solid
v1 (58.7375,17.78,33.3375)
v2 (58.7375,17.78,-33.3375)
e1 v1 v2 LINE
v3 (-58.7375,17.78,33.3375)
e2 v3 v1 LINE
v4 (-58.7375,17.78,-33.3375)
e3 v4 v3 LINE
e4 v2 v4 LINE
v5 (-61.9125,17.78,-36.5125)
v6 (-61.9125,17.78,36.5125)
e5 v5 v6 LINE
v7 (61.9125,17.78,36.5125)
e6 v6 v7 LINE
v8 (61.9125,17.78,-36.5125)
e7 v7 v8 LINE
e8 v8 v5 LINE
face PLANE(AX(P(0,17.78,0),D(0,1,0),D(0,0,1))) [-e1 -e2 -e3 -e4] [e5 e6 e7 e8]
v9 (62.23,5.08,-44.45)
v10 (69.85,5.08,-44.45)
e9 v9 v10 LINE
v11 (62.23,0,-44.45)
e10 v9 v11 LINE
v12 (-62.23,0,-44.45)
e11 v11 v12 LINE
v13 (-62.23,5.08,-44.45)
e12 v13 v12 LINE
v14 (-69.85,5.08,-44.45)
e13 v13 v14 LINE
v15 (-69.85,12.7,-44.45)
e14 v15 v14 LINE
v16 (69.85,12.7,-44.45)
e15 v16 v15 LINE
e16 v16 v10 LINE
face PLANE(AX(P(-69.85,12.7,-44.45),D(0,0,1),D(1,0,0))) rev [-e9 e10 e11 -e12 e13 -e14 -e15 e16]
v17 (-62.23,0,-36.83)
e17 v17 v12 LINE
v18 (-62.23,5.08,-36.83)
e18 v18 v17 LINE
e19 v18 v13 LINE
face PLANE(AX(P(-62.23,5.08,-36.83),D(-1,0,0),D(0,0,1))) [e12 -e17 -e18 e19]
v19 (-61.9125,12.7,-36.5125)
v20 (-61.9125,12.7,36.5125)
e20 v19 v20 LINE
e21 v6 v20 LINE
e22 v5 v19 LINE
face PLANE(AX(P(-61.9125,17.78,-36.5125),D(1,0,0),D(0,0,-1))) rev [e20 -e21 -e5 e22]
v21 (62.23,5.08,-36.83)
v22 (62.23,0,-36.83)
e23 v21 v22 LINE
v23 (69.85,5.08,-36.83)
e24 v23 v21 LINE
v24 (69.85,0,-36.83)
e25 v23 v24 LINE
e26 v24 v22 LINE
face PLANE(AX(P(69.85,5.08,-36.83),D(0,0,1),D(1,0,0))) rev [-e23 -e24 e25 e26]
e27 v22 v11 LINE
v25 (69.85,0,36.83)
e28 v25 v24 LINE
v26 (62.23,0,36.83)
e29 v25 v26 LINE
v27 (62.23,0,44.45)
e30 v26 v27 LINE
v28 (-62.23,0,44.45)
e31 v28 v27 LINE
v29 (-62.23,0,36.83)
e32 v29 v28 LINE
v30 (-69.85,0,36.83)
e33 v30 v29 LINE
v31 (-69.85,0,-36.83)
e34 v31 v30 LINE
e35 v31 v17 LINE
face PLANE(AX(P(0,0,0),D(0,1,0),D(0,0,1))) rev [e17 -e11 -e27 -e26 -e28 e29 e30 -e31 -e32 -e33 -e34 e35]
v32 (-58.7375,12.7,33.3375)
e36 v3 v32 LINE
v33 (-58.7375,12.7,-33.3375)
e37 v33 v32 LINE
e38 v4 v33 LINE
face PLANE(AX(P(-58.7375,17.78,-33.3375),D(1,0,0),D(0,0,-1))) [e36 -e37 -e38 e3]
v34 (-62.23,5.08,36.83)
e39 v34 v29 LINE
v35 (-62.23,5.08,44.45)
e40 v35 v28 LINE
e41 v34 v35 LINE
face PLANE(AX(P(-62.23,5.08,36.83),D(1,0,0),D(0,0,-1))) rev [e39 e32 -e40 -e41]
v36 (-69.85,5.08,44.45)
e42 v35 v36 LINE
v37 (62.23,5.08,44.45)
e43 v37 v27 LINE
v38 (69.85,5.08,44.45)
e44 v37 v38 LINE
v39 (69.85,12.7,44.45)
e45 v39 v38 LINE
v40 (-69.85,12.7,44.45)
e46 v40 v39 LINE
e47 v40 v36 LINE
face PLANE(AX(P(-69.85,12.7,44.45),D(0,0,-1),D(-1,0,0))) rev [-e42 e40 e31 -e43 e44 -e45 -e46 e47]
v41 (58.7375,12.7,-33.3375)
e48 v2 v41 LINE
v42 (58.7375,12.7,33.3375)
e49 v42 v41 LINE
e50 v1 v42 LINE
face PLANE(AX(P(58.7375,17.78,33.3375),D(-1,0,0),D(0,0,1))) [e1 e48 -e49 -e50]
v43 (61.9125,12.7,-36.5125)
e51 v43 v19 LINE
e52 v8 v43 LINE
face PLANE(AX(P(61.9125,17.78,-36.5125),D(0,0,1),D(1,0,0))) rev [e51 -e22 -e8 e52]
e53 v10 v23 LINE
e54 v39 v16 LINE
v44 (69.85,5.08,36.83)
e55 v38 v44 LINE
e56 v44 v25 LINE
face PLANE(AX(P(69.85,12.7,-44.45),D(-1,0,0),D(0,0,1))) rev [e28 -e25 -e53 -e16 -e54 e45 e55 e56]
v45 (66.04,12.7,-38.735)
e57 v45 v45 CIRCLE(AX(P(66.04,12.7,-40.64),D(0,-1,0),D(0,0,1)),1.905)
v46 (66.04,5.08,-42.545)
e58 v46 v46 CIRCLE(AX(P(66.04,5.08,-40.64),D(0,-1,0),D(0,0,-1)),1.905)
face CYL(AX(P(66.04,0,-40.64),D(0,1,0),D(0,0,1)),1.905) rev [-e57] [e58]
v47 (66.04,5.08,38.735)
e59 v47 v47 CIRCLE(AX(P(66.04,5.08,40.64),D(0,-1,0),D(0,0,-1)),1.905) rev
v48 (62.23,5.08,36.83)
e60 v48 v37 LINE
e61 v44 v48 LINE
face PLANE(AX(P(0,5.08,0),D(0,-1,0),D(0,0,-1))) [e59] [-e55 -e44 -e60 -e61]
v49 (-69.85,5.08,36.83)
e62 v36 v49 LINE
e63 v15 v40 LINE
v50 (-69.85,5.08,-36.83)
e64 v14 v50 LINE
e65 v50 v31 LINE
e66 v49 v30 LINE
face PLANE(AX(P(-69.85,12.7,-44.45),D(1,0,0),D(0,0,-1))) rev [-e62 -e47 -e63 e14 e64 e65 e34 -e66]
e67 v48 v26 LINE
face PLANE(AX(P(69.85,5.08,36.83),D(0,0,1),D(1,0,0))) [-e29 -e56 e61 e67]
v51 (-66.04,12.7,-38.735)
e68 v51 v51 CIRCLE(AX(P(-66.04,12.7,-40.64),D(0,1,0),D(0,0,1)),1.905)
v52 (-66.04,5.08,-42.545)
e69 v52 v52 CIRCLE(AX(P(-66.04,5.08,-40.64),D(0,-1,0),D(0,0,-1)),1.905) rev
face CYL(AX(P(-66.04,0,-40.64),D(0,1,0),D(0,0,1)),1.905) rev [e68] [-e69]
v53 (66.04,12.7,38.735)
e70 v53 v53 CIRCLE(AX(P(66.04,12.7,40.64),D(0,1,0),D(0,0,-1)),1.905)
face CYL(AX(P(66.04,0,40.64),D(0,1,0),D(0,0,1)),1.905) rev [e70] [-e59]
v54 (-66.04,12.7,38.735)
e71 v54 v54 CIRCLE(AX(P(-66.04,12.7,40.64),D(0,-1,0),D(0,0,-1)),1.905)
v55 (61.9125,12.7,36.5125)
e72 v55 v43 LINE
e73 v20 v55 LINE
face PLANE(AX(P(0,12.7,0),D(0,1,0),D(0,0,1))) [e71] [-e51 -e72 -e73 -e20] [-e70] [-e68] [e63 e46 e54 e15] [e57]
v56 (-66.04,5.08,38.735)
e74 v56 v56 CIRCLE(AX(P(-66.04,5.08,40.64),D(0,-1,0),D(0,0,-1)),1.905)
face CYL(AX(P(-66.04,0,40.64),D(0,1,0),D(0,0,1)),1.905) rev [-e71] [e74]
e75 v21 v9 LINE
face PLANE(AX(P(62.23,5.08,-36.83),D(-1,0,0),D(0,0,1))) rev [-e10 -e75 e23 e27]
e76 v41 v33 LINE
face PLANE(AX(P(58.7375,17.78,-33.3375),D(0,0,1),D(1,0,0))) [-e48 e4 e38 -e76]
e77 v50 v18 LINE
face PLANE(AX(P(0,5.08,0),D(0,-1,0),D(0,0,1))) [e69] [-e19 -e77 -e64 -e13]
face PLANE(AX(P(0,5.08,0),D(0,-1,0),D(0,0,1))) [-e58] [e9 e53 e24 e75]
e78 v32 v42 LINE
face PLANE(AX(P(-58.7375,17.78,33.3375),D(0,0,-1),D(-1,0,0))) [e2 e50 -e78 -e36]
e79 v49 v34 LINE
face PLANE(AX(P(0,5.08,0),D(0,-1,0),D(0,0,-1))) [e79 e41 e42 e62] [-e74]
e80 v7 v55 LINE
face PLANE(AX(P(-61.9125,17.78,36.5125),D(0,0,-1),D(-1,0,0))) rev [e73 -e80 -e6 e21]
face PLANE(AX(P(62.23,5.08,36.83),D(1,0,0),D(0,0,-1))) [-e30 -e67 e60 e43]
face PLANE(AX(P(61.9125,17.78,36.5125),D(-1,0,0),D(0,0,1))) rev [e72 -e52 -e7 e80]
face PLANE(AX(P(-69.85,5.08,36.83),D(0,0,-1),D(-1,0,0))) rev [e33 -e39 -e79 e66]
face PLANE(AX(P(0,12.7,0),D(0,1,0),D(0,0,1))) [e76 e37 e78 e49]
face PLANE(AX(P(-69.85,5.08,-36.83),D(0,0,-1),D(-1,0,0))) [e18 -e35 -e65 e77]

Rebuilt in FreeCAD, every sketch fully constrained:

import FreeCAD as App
import Part
import Sketcher

V = App.Vector
Q = App.Units.Quantity

doc = App.newDocument("Part")
body = doc.addObject("PartDesign::Body", "Body")

sketch1 = doc.addObject("Sketcher::SketchObject", "Sketch")
body.addObject(sketch1)
sketch1.AttachmentSupport = (doc.XZ_Plane, [""])
sketch1.MapMode = "FlatFace"
sketch1.addGeometry([
    Part.LineSegment(V(-70, -44, 0), V(-70, 44, 0)),
    Part.LineSegment(V(-70, 44, 0), V(70, 44, 0)),
    Part.LineSegment(V(70, 44, 0), V(70, -44, 0)),
    Part.LineSegment(V(70, -44, 0), V(-70, -44, 0)),
], False)
sketch1.addConstraint([
    Sketcher.Constraint("Coincident", 0, 2, 1, 1),
    Sketcher.Constraint("Coincident", 1, 2, 2, 1),
    Sketcher.Constraint("Coincident", 2, 2, 3, 1),
    Sketcher.Constraint("Coincident", 3, 2, 0, 1),
    Sketcher.Constraint("Vertical", 0),
    Sketcher.Constraint("Horizontal", 1),
    Sketcher.Constraint("Vertical", 2),
    Sketcher.Constraint("Horizontal", 3),
    Sketcher.Constraint("Symmetric", 0, 2, 2, 2, -1, 1),
    Sketcher.Constraint("DistanceX", 1, 1, 1, 2, Q("5.5 in")),
    Sketcher.Constraint("DistanceY", 0, 1, 0, 2, Q("3.5 in")),
])
pad1 = doc.addObject("PartDesign::Pad", "Pad")
body.addObject(pad1)
pad1.Profile = sketch1
pad1.Length = Q("0.5 in")
pad1.Reversed = True

sketch2 = doc.addObject("Sketcher::SketchObject", "Sketch001")
body.addObject(sketch2)
sketch2.AttachmentSupport = (doc.XZ_Plane, [""])
sketch2.MapMode = "FlatFace"
sketch2.AttachmentOffset = App.Placement(V(0, 0, -0.5 * 25.4), App.Rotation())
sketch2.addGeometry(Part.Circle(V(-66, -40.6, 0), V(0, 0, 1), 1.9), False)
sketch2.addConstraint([
    Sketcher.Constraint("Diameter", 0, Q("0.15 in")),
    Sketcher.Constraint("DistanceX", 0, 3, -1, 1, Q("2.6 in")),
    Sketcher.Constraint("DistanceY", 0, 3, -1, 1, Q("1.6 in")),
])
pocket1 = doc.addObject("PartDesign::Pocket", "Pocket")
body.addObject(pocket1)
pocket1.Profile = sketch2
pocket1.Type = "ThroughAll"
pocket1.Reversed = True
doc.recompute()

mirrored = doc.addObject("PartDesign::Mirrored", "Mirrored")
body.addObject(mirrored)
mirrored.Originals = [pocket1]
mirrored.MirrorPlane = (doc.YZ_Plane, [""])
body.Tip = mirrored
doc.recompute()

mirrored2 = doc.addObject("PartDesign::Mirrored", "Mirrored001")
body.addObject(mirrored2)
mirrored2.Originals = [pocket1]
mirrored2.MirrorPlane = (doc.XY_Plane, [""])
body.Tip = mirrored2

sketch3 = doc.addObject("Sketcher::SketchObject", "Sketch002")
body.addObject(sketch3)
sketch3.AttachmentSupport = (doc.XZ_Plane, [""])
sketch3.MapMode = "FlatFace"
sketch3.AttachmentOffset = App.Placement(V(0, 0, -0.5 * 25.4), App.Rotation())
sketch3.addGeometry(Part.Circle(V(66, 40.6, 0), V(0, 0, 1), 1.9), False)
sketch3.addConstraint([
    Sketcher.Constraint("Diameter", 0, Q("0.15 in")),
    Sketcher.Constraint("DistanceX", -1, 1, 0, 3, Q("2.6 in")),
    Sketcher.Constraint("DistanceY", -1, 1, 0, 3, Q("1.6 in")),
])
pocket2 = doc.addObject("PartDesign::Pocket", "Pocket001")
body.addObject(pocket2)
pocket2.Profile = sketch3
pocket2.Type = "ThroughAll"
pocket2.Reversed = True

sketch4 = doc.addObject("Sketcher::SketchObject", "Sketch003")
body.addObject(sketch4)
sketch4.AttachmentSupport = (doc.XZ_Plane, [""])
sketch4.MapMode = "FlatFace"
sketch4.AttachmentOffset = App.Placement(V(0, 0, -0.5 * 25.4), App.Rotation())
sketch4.addGeometry([
    Part.LineSegment(V(-62, -37, 0), V(-62, 37, 0)),
    Part.LineSegment(V(-62, 37, 0), V(62, 37, 0)),
    Part.LineSegment(V(62, 37, 0), V(62, -37, 0)),
    Part.LineSegment(V(62, -37, 0), V(-62, -37, 0)),
    Part.LineSegment(V(59, 33, 0), V(-59, 33, 0)),
    Part.LineSegment(V(-59, 33, 0), V(-59, -33, 0)),
    Part.LineSegment(V(-59, -33, 0), V(59, -33, 0)),
    Part.LineSegment(V(59, -33, 0), V(59, 33, 0)),
], False)
sketch4.addConstraint([
    Sketcher.Constraint("Coincident", 0, 2, 1, 1),
    Sketcher.Constraint("Coincident", 1, 2, 2, 1),
    Sketcher.Constraint("Coincident", 2, 2, 3, 1),
    Sketcher.Constraint("Coincident", 3, 2, 0, 1),
    Sketcher.Constraint("Coincident", 4, 2, 5, 1),
    Sketcher.Constraint("Coincident", 5, 2, 6, 1),
    Sketcher.Constraint("Coincident", 6, 2, 7, 1),
    Sketcher.Constraint("Coincident", 7, 2, 4, 1),
    Sketcher.Constraint("Vertical", 0),
    Sketcher.Constraint("Horizontal", 1),
    Sketcher.Constraint("Vertical", 2),
    Sketcher.Constraint("Horizontal", 3),
    Sketcher.Constraint("Horizontal", 4),
    Sketcher.Constraint("Vertical", 5),
    Sketcher.Constraint("Horizontal", 6),
    Sketcher.Constraint("Vertical", 7),
    Sketcher.Constraint("Symmetric", 0, 2, 2, 2, -1, 1),
    Sketcher.Constraint("Symmetric", 4, 2, 6, 2, -1, 1),
    Sketcher.Constraint("DistanceX", 1, 1, 1, 2, Q("4.875 in")),
    Sketcher.Constraint("DistanceX", 4, 2, 4, 1, Q("4.625 in")),
    Sketcher.Constraint("DistanceY", 0, 1, 0, 2, Q("2.875 in")),
    Sketcher.Constraint("DistanceY", 5, 2, 5, 1, Q("2.625 in")),
])
pad2 = doc.addObject("PartDesign::Pad", "Pad001")
body.addObject(pad2)
pad2.Profile = sketch4
pad2.Length = Q("0.2 in")
pad2.Reversed = True

sketch5 = doc.addObject("Sketcher::SketchObject", "Sketch004")
body.addObject(sketch5)
sketch5.AttachmentSupport = (doc.XZ_Plane, [""])
sketch5.MapMode = "FlatFace"
sketch5.addGeometry([
    Part.LineSegment(V(-70, 44, 0), V(-70, 37, 0)),
    Part.LineSegment(V(-70, 37, 0), V(-62, 37, 0)),
    Part.LineSegment(V(-62, 37, 0), V(-62, 44, 0)),
    Part.LineSegment(V(-62, 44, 0), V(-70, 44, 0)),
], False)
sketch5.addConstraint([
    Sketcher.Constraint("Coincident", 0, 2, 1, 1),
    Sketcher.Constraint("Coincident", 1, 2, 2, 1),
    Sketcher.Constraint("Coincident", 2, 2, 3, 1),
    Sketcher.Constraint("Coincident", 3, 2, 0, 1),
    Sketcher.Constraint("Vertical", 0),
    Sketcher.Constraint("Horizontal", 1),
    Sketcher.Constraint("Vertical", 2),
    Sketcher.Constraint("Horizontal", 3),
    Sketcher.Constraint("Equal", 3, 0),
    Sketcher.Constraint("DistanceX", 1, 1, 1, 2, Q("0.3 in")),
    Sketcher.Constraint("DistanceX", 0, 2, -1, 1, Q("2.75 in")),
    Sketcher.Constraint("DistanceY", -1, 1, 0, 2, Q("1.45 in")),
])
pocket3 = doc.addObject("PartDesign::Pocket", "Pocket002")
body.addObject(pocket3)
pocket3.Profile = sketch5
pocket3.Length = Q("0.2 in")
doc.recompute()

mirrored3 = doc.addObject("PartDesign::Mirrored", "Mirrored002")
body.addObject(mirrored3)
mirrored3.Originals = [pocket3]
mirrored3.MirrorPlane = (doc.YZ_Plane, [""])
body.Tip = mirrored3
doc.recompute()

mirrored4 = doc.addObject("PartDesign::Mirrored", "Mirrored003")
body.addObject(mirrored4)
mirrored4.Originals = [pocket3]
mirrored4.MirrorPlane = (doc.XY_Plane, [""])
body.Tip = mirrored4

sketch6 = doc.addObject("Sketcher::SketchObject", "Sketch005")
body.addObject(sketch6)
sketch6.AttachmentSupport = (doc.XZ_Plane, [""])
sketch6.MapMode = "FlatFace"
sketch6.addGeometry([
    Part.LineSegment(V(70, -44, 0), V(70, -37, 0)),
    Part.LineSegment(V(70, -37, 0), V(62, -37, 0)),
    Part.LineSegment(V(62, -37, 0), V(62, -44, 0)),
    Part.LineSegment(V(62, -44, 0), V(70, -44, 0)),
], False)
sketch6.addConstraint([
    Sketcher.Constraint("Coincident", 0, 2, 1, 1),
    Sketcher.Constraint("Coincident", 1, 2, 2, 1),
    Sketcher.Constraint("Coincident", 2, 2, 3, 1),
    Sketcher.Constraint("Coincident", 3, 2, 0, 1),
    Sketcher.Constraint("Vertical", 0),
    Sketcher.Constraint("Horizontal", 1),
    Sketcher.Constraint("Vertical", 2),
    Sketcher.Constraint("Horizontal", 3),
    Sketcher.Constraint("Equal", 3, 0),
    Sketcher.Constraint("DistanceX", 1, 2, 1, 1, Q("0.3 in")),
    Sketcher.Constraint("DistanceX", -1, 1, 0, 2, Q("2.75 in")),
    Sketcher.Constraint("DistanceY", 0, 2, -1, 1, Q("1.45 in")),
])
pocket4 = doc.addObject("PartDesign::Pocket", "Pocket003")
body.addObject(pocket4)
pocket4.Profile = sketch6
pocket4.Length = Q("0.2 in")

doc.recompute()
